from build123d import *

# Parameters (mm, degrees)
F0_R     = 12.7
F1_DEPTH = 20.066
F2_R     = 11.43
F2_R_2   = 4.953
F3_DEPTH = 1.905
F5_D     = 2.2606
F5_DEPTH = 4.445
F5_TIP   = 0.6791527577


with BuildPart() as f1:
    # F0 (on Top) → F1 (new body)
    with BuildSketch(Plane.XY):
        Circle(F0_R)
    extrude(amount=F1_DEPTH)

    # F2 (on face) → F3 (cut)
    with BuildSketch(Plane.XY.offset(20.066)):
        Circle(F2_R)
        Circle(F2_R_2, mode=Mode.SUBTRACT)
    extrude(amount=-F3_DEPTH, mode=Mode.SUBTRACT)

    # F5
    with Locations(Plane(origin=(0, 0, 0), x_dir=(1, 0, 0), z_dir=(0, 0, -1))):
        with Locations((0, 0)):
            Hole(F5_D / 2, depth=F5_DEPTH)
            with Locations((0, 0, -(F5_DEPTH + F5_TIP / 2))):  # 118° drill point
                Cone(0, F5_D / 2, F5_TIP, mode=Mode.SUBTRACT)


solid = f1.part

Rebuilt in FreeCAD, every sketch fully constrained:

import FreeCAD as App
import Part
import Sketcher

V = App.Vector
Q = App.Units.Quantity

doc = App.newDocument("Part")
body = doc.addObject("PartDesign::Body", "Body")

# Sketch on XY plane
sketch1 = body.newObject("Sketcher::SketchObject", "Sketch")
sketch1.AttachmentSupport = (doc.getObject("XY_Plane"), [""])
sketch1.MapMode = "FlatFace"
sketch1.addGeometry(Part.Circle(V(0, 0, 0), V(0, 0, 1), 12.7), False)
sketch1.addConstraint(Sketcher.Constraint("Coincident", 0, 3, -1, 1))
sketch1.addConstraint(Sketcher.Constraint("Diameter", 0, Q("1 in")))
pad1 = body.newObject("PartDesign::Pad", "Pad")
pad1.Profile = sketch1
pad1.Length = Q("0.79 in")

# Sketch on XY plane
sketch2 = body.newObject("Sketcher::SketchObject", "Sketch001")
sketch2.AttachmentSupport = (doc.getObject("XY_Plane"), [""])
sketch2.MapMode = "FlatFace"
sketch2.AttachmentOffset = App.Placement(V(0, 0, 0.79 * 25.4), App.Rotation())
sketch2.addGeometry(Part.Circle(V(0, 0, 0), V(0, 0, 1), 11.43), False)
sketch2.addGeometry(Part.Circle(V(0, 0, 0), V(0, 0, 1), 4.953), False)
sketch2.addConstraint(Sketcher.Constraint("Coincident", 0, 3, -1, 1))
sketch2.addConstraint(Sketcher.Constraint("Coincident", 1, 3, -1, 1))
sketch2.addConstraint(Sketcher.Constraint("Diameter", 0, Q("0.9 in")))
sketch2.addConstraint(Sketcher.Constraint("Diameter", 1, Q("0.39 in")))
pocket1 = body.newObject("PartDesign::Pocket", "Pocket")
pocket1.Profile = sketch2
pocket1.Length = Q("0.075 in")

# Sketch on XY plane
sketch3 = body.newObject("Sketcher::SketchObject", "Sketch002")
sketch3.AttachmentSupport = (doc.getObject("XY_Plane"), [""])
sketch3.MapMode = "FlatFace"
sketch3.addGeometry(Part.Circle(V(0, 0, 0), V(0, 0, 1), 1.1303), False)
sketch3.addConstraint(Sketcher.Constraint("Coincident", 0, 3, -1, 1))
sketch3.addConstraint(Sketcher.Constraint("Diameter", 0, Q("0.089 in")))
doc.recompute()
hole = body.newObject("PartDesign::Hole", "Hole")
hole.Profile = sketch3
hole.ThreadType = "None"
hole.Diameter = Q("0.089 in")
hole.DepthType = "Dimension"
hole.Depth = Q("0.175 in")
hole.DrillPoint = "Angled"
hole.DrillPointAngle = 118
hole.Reversed = True

doc.recompute()
